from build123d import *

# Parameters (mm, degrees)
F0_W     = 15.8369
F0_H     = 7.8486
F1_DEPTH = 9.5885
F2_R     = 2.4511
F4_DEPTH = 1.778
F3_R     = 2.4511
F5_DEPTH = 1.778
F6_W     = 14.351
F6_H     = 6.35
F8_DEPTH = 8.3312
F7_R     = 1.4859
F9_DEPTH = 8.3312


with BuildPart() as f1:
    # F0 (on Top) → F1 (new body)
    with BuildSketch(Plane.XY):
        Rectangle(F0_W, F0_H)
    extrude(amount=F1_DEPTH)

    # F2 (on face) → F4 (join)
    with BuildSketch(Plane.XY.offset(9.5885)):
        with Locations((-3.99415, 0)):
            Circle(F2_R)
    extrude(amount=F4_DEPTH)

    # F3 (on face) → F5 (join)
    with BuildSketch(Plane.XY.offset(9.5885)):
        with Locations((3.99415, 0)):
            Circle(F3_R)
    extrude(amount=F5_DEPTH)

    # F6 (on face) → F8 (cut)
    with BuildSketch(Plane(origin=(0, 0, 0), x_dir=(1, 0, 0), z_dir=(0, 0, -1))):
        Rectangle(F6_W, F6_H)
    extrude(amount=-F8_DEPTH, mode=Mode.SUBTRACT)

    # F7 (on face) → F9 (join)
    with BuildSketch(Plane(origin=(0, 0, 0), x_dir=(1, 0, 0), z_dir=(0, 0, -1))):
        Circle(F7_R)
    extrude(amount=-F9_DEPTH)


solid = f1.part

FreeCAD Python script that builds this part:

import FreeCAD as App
import Part
import Sketcher

V = App.Vector
Q = App.Units.Quantity

doc = App.newDocument("Part")
body = doc.addObject("PartDesign::Body", "Body")

# Sketch on XY plane
sketch1 = body.newObject("Sketcher::SketchObject", "Sketch")
sketch1.AttachmentSupport = (doc.getObject("XY_Plane"), [""])
sketch1.MapMode = "FlatFace"
sketch1.addGeometry([
    Part.LineSegment(V(-8, 4, 0), V(-8, -4, 0)),
    Part.LineSegment(V(-8, -4, 0), V(8, -4, 0)),
    Part.LineSegment(V(8, -4, 0), V(8, 4, 0)),
    Part.LineSegment(V(8, 4, 0), V(-8, 4, 0)),
], False)
sketch1.addConstraint([
    Sketcher.Constraint("Coincident", 0, 2, 1, 1),
    Sketcher.Constraint("Coincident", 1, 2, 2, 1),
    Sketcher.Constraint("Coincident", 2, 2, 3, 1),
    Sketcher.Constraint("Coincident", 3, 2, 0, 1),
    Sketcher.Constraint("Vertical", 0),
    Sketcher.Constraint("Horizontal", 1),
    Sketcher.Constraint("Vertical", 2),
    Sketcher.Constraint("Horizontal", 3),
    Sketcher.Constraint("Symmetric", 0, 2, 2, 2, -1, 1),
    Sketcher.Constraint("DistanceY", 0, 2, 0, 1, Q("0.309 in")),
    Sketcher.Constraint("DistanceX", 1, 1, 1, 2, Q("0.6235 in")),
])
pad1 = body.newObject("PartDesign::Pad", "Pad")
pad1.Profile = sketch1
pad1.Length = Q("0.3775 in")

# Sketch on XY plane
sketch2 = body.newObject("Sketcher::SketchObject", "Sketch001")
sketch2.AttachmentSupport = (doc.getObject("XY_Plane"), [""])
sketch2.MapMode = "FlatFace"
sketch2.AttachmentOffset = App.Placement(V(0, 0, 0.3775 * 25.4), App.Rotation())
sketch2.addGeometry(Part.Circle(V(-4, 0, 0), V(0, 0, 1), 2.5), False)
sketch2.addConstraint([
    Sketcher.Constraint("PointOnObject", 0, 3, -1),
    Sketcher.Constraint("Diameter", 0, Q("0.193 in")),
    Sketcher.Constraint("DistanceX", 0, 3, -1, 1, Q("3.99415 mm")),
])
pad2 = body.newObject("PartDesign::Pad", "Pad001")
pad2.Profile = sketch2
pad2.Length = Q("0.07 in")

# Sketch on XY plane
sketch3 = body.newObject("Sketcher::SketchObject", "Sketch002")
sketch3.AttachmentSupport = (doc.getObject("XY_Plane"), [""])
sketch3.MapMode = "FlatFace"
sketch3.AttachmentOffset = App.Placement(V(0, 0, 0.3775 * 25.4), App.Rotation())
sketch3.addGeometry(Part.Circle(V(4, 0, 0), V(0, 0, 1), 2.5), False)
sketch3.addConstraint([
    Sketcher.Constraint("PointOnObject", 0, 3, -1),
    Sketcher.Constraint("Diameter", 0, Q("0.193 in")),
    Sketcher.Constraint("DistanceX", -1, 1, 0, 3, Q("3.99415 mm")),
])
pad3 = body.newObject("PartDesign::Pad", "Pad002")
pad3.Profile = sketch3
pad3.Length = Q("0.07 in")

# Sketch on XY plane
sketch4 = body.newObject("Sketcher::SketchObject", "Sketch003")
sketch4.AttachmentSupport = (doc.getObject("XY_Plane"), [""])
sketch4.MapMode = "FlatFace"
sketch4.addGeometry([
    Part.LineSegment(V(-7, -3, 0), V(-7, 3, 0)),
    Part.LineSegment(V(-7, 3, 0), V(7, 3, 0)),
    Part.LineSegment(V(7, 3, 0), V(7, -3, 0)),
    Part.LineSegment(V(7, -3, 0), V(-7, -3, 0)),
], False)
sketch4.addConstraint([
    Sketcher.Constraint("Coincident", 0, 2, 1, 1),
    Sketcher.Constraint("Coincident", 1, 2, 2, 1),
    Sketcher.Constraint("Coincident", 2, 2, 3, 1),
    Sketcher.Constraint("Coincident", 3, 2, 0, 1),
    Sketcher.Constraint("Vertical", 0),
    Sketcher.Constraint("Horizontal", 1),
    Sketcher.Constraint("Vertical", 2),
    Sketcher.Constraint("Horizontal", 3),
    Sketcher.Constraint("Symmetric", 0, 2, 2, 2, -1, 1),
    Sketcher.Constraint("DistanceY", 0, 1, 0, 2, Q("0.25 in")),
    Sketcher.Constraint("DistanceX", 1, 1, 1, 2, Q("0.565 in")),
])
pocket1 = body.newObject("PartDesign::Pocket", "Pocket")
pocket1.Profile = sketch4
pocket1.Length = Q("0.328 in")
pocket1.Reversed = True

# Sketch on XY plane
sketch5 = body.newObject("Sketcher::SketchObject", "Sketch004")
sketch5.AttachmentSupport = (doc.getObject("XY_Plane"), [""])
sketch5.MapMode = "FlatFace"
sketch5.addGeometry(Part.Circle(V(0, 0, 0), V(0, 0, 1), 1.5), False)
sketch5.addConstraint([
    Sketcher.Constraint("Coincident", 0, 3, -1, 1),
    Sketcher.Constraint("Diameter", 0, Q("0.117 in")),
])
pad4 = body.newObject("PartDesign::Pad", "Pad003")
pad4.Profile = sketch5
pad4.Length = Q("0.328 in")

doc.recompute()
